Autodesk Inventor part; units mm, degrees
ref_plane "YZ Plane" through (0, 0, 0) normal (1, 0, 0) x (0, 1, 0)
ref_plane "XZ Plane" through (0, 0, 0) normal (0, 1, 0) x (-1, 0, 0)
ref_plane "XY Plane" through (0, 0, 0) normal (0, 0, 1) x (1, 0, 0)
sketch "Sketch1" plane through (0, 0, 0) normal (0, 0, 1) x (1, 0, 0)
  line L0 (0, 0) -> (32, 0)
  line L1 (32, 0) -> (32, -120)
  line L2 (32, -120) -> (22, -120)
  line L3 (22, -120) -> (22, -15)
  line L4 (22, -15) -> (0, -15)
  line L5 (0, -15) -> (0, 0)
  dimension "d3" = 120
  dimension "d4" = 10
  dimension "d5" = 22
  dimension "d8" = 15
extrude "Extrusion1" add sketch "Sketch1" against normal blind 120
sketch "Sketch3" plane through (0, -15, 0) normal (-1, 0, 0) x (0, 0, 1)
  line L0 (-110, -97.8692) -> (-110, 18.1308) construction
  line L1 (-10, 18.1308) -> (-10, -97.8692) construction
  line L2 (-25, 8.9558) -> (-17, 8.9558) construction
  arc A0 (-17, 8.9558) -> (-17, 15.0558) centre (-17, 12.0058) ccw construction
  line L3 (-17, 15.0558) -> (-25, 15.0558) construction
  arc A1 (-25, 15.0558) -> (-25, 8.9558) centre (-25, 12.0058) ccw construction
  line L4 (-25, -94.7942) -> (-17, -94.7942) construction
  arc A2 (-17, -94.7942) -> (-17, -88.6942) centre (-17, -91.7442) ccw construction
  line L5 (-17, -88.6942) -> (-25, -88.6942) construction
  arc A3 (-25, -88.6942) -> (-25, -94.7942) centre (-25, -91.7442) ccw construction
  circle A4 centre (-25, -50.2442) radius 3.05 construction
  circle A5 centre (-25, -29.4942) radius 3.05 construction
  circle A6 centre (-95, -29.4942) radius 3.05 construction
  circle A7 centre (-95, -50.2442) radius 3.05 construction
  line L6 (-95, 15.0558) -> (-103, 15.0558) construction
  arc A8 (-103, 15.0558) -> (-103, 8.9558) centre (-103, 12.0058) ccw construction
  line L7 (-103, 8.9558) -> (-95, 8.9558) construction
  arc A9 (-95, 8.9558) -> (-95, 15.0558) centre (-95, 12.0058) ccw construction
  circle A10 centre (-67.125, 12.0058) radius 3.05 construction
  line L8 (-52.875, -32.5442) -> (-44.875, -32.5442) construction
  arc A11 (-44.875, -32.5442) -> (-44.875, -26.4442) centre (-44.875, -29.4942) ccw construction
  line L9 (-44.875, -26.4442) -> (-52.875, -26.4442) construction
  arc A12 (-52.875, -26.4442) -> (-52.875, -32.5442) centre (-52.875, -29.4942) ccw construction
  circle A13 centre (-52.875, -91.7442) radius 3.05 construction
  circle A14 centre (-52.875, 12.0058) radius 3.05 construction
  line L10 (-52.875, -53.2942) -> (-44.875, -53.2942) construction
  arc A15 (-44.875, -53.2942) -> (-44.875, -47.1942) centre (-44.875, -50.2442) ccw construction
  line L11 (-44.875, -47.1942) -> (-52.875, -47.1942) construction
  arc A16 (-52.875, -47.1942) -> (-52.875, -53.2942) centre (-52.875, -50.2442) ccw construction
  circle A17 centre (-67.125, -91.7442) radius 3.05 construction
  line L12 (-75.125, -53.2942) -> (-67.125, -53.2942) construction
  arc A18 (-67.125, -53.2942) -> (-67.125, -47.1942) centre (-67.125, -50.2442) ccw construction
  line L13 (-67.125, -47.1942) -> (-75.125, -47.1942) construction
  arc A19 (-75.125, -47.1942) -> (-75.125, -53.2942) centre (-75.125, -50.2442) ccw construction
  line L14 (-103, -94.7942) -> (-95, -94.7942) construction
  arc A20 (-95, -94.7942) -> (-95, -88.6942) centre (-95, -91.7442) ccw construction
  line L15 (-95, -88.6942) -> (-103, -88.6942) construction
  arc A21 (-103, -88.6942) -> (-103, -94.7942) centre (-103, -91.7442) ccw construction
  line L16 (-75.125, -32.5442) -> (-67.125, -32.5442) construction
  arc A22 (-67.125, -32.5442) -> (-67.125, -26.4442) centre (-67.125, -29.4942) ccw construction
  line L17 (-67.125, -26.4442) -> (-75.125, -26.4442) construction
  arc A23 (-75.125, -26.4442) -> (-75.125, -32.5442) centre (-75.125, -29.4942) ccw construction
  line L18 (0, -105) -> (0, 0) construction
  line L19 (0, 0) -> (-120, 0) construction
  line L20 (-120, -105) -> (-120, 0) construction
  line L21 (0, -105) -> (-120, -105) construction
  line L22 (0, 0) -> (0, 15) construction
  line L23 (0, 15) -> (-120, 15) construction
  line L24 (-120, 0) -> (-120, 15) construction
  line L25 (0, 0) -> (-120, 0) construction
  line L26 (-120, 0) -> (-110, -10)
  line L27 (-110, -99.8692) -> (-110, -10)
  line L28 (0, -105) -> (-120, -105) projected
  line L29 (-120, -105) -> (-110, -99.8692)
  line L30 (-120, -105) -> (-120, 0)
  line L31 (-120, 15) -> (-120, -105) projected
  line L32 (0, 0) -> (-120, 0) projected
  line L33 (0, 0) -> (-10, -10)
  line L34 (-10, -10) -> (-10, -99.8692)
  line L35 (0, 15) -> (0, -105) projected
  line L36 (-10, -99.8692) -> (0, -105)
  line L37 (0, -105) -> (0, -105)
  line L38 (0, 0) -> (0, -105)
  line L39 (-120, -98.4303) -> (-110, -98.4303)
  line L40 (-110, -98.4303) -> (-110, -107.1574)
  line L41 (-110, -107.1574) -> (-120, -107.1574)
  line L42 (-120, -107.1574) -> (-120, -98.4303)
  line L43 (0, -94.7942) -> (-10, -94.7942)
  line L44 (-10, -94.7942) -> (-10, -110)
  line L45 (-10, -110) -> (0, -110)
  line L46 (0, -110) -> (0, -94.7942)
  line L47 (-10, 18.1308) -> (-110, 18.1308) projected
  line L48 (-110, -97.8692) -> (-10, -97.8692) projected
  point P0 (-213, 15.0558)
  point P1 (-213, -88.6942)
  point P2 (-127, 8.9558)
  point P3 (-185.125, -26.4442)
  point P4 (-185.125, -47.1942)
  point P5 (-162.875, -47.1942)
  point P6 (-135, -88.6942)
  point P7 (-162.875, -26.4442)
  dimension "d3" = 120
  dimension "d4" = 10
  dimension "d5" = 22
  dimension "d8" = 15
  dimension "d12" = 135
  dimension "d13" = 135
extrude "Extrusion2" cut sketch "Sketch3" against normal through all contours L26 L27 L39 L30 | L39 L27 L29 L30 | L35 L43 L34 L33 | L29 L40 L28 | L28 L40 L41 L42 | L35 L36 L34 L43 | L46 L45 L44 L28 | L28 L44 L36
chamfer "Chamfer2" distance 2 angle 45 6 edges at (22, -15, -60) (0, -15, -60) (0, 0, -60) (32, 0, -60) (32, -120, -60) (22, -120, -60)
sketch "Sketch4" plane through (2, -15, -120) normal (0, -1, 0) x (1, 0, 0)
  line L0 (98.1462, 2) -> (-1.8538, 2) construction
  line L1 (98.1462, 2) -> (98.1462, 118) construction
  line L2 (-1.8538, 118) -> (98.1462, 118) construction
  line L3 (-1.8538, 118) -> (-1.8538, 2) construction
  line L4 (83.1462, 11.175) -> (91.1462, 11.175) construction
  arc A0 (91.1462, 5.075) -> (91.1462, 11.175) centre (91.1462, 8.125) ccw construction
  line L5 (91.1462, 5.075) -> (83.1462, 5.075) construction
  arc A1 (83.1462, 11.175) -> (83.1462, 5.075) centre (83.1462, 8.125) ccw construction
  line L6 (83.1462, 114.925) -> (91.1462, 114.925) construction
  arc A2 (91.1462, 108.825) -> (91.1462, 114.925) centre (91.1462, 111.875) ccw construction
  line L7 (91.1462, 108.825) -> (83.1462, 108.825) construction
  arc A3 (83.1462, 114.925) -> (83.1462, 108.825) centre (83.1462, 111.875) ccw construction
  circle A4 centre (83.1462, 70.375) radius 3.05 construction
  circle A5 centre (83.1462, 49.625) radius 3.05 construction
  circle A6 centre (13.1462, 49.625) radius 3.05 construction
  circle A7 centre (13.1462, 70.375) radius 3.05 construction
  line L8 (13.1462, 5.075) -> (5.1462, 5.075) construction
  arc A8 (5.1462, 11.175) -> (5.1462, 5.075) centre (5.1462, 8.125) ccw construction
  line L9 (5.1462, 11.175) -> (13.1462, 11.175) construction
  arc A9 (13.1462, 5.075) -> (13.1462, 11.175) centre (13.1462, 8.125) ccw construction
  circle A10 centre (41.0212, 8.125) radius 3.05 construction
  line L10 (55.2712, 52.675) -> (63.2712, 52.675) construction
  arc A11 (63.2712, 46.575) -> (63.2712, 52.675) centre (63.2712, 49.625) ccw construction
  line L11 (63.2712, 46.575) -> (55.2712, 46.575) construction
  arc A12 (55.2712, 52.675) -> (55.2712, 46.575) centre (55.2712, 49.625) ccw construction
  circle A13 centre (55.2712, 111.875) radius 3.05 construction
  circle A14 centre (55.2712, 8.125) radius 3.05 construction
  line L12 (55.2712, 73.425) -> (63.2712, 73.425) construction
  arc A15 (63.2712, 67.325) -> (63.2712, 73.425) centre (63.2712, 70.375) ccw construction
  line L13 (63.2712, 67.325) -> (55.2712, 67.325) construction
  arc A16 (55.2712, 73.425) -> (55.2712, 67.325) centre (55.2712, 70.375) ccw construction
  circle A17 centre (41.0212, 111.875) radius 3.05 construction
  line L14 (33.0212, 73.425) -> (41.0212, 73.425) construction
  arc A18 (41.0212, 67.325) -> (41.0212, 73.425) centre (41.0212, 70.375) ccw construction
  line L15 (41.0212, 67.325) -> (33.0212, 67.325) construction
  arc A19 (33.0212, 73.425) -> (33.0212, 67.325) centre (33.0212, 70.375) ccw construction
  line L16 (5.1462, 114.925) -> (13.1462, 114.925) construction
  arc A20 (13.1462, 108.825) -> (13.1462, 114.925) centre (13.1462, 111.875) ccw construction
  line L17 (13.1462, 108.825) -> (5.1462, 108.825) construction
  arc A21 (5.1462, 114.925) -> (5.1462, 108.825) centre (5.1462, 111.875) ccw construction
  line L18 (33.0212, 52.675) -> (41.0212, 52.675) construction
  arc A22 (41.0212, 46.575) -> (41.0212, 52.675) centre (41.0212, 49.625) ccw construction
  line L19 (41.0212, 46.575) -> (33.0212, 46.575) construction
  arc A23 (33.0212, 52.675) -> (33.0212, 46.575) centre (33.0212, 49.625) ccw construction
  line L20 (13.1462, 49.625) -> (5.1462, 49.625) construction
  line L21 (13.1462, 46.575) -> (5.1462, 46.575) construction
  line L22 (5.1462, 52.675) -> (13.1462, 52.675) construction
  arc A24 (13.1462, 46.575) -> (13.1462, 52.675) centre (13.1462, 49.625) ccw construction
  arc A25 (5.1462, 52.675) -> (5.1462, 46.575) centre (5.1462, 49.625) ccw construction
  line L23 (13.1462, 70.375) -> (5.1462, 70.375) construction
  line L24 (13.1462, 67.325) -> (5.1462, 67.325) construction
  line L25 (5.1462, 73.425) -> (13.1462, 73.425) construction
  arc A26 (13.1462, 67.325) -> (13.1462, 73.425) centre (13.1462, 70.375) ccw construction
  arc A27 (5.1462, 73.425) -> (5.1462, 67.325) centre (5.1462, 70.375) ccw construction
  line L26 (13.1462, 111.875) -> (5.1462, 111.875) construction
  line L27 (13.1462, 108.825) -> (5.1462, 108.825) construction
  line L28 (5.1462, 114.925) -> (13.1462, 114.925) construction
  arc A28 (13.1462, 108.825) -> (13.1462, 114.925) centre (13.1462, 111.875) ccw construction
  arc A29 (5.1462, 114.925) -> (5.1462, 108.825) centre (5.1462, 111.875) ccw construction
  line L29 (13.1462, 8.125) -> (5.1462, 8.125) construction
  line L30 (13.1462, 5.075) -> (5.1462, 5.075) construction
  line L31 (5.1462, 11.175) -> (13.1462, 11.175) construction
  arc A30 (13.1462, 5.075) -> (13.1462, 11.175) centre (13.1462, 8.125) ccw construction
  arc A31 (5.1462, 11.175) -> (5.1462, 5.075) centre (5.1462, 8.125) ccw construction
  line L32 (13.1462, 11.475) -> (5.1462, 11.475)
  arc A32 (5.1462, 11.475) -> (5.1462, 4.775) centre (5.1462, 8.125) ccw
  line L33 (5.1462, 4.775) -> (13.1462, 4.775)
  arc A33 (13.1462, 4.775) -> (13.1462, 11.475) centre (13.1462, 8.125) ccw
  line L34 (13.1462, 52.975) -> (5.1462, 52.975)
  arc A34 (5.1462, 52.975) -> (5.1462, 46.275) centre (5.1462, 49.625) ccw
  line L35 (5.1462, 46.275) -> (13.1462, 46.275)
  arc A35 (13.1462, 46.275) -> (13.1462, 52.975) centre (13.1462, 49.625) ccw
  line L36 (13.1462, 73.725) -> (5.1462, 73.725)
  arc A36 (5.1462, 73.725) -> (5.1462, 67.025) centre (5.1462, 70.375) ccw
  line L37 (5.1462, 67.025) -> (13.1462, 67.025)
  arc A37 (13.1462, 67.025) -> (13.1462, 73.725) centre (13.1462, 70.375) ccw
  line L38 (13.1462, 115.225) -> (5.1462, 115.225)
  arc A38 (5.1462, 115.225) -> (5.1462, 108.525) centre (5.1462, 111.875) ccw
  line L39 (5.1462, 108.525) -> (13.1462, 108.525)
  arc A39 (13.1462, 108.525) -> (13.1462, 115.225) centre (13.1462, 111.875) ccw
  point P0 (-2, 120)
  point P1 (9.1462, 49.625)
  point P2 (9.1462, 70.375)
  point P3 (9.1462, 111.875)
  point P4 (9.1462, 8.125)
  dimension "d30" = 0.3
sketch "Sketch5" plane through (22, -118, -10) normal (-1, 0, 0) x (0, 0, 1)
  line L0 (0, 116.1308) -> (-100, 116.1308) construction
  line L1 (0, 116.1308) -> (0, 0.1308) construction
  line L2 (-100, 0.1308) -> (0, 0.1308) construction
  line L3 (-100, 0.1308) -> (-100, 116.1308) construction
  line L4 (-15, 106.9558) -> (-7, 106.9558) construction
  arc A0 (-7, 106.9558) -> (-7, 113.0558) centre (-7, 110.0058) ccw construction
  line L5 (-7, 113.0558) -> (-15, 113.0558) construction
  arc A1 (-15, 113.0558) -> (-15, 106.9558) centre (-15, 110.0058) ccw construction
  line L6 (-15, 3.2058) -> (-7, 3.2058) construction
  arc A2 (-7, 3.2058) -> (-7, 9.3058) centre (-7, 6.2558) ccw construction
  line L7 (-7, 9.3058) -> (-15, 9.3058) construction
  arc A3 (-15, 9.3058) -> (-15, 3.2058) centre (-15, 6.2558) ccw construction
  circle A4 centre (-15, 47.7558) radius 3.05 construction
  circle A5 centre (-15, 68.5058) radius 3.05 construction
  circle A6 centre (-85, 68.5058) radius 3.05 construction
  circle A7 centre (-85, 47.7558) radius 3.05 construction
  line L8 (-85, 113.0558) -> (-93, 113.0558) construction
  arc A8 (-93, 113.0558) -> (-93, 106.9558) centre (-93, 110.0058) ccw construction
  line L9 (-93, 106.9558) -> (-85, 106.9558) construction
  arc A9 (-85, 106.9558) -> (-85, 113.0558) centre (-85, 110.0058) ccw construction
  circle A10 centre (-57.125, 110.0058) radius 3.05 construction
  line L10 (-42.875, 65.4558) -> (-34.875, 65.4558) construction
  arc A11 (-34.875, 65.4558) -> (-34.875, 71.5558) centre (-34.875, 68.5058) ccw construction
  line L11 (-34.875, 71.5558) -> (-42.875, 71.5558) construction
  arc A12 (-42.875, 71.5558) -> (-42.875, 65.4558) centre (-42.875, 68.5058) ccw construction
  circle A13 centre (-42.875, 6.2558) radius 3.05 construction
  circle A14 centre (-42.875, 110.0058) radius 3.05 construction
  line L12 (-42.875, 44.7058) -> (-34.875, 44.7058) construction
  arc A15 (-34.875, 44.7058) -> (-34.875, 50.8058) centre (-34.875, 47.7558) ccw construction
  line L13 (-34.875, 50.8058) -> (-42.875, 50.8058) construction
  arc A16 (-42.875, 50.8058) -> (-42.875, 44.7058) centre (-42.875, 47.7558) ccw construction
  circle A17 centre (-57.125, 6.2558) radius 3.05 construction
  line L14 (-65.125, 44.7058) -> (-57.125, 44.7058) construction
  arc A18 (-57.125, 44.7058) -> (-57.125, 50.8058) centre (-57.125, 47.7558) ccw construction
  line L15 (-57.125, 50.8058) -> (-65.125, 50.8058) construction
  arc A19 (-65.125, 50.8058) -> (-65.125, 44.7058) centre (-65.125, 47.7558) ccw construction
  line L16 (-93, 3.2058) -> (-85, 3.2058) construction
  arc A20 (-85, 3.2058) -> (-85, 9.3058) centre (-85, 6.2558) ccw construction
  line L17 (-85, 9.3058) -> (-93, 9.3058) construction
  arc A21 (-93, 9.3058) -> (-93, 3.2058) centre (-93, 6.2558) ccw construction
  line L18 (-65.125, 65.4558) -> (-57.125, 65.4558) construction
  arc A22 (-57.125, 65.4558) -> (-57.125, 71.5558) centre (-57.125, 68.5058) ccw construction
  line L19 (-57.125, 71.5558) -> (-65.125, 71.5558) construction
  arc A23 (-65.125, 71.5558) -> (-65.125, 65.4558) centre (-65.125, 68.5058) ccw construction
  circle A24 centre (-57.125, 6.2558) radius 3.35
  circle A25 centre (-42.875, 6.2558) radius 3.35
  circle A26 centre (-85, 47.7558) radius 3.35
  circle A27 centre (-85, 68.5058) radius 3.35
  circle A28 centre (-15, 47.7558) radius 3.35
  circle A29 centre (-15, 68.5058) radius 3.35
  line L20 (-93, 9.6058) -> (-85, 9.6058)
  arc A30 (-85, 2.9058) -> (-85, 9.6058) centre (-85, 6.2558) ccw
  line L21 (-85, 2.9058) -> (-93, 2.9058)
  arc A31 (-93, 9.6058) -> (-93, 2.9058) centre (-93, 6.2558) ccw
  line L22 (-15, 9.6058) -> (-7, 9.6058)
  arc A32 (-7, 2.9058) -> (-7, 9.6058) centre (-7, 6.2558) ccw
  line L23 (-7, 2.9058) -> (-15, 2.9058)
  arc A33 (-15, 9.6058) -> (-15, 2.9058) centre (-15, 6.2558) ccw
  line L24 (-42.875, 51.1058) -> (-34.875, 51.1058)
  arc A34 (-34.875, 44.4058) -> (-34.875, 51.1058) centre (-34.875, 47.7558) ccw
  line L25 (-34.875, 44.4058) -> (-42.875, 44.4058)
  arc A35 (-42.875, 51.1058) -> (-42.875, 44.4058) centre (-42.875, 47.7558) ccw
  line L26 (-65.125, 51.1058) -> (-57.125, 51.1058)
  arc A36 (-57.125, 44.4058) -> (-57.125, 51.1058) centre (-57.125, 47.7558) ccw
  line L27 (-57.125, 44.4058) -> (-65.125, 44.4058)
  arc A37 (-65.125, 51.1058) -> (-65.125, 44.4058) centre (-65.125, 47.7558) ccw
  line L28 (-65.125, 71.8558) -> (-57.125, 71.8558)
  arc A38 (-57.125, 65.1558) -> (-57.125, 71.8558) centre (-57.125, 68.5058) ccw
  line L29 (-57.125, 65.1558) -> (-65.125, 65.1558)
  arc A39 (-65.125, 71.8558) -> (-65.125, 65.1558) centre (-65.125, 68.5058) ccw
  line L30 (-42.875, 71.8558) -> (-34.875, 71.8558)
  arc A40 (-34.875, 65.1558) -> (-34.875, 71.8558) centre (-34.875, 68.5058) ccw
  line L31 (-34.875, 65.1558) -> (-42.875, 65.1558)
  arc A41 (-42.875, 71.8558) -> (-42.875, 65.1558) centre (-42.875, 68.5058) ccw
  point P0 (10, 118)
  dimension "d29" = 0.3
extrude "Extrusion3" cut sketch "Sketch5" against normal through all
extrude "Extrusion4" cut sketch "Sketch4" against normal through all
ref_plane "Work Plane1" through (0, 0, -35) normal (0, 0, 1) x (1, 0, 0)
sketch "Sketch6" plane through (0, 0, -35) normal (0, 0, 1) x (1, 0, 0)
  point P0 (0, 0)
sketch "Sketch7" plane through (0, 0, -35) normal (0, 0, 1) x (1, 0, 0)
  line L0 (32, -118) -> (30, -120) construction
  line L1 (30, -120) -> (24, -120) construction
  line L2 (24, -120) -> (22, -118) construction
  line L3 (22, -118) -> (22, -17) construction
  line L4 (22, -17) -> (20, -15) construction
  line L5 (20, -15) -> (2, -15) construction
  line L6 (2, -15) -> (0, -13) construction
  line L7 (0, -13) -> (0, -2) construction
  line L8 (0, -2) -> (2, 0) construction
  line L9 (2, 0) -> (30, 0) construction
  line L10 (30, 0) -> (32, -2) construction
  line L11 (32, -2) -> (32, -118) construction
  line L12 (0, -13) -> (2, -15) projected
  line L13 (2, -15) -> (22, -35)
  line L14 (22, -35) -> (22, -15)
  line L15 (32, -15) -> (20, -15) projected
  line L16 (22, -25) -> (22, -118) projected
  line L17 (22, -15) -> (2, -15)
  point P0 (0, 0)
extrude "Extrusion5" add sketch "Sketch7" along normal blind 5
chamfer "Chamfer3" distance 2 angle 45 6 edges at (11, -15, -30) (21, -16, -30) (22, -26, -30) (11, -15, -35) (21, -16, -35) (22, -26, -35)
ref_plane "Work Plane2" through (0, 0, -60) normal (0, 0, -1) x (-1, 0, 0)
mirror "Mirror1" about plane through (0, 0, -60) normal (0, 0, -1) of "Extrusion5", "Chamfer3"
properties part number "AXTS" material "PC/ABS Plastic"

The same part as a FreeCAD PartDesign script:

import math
import FreeCAD as App
import Part
import Sketcher
Q = App.Units.Quantity


def edges_at(feature, points):
    """Names of the edges that pass closest to the given points."""
    edges = feature.Shape.Edges
    near = lambda p: min(range(len(edges)), key=lambda i: edges[i].distToShape(Part.Vertex(*p))[0])
    return sorted({f"Edge{near(p) + 1}" for p in points})

doc = App.newDocument("Part")
body = doc.addObject("PartDesign::Body", "Body")

# Sketch on XY plane
sketch1 = doc.addObject("Sketcher::SketchObject", "Sketch")
body.addObject(sketch1)
sketch1.AttachmentSupport = (doc.XY_Plane, [""])
sketch1.MapMode = "FlatFace"
sketch1.addGeometry(Part.LineSegment(App.Vector(32, 0, 0), App.Vector(0, 0, 0)), False)
sketch1.addGeometry(Part.LineSegment(App.Vector(0, 0, 0), App.Vector(0, -15, 0)), False)
sketch1.addGeometry(Part.LineSegment(App.Vector(0, -15, 0), App.Vector(22, -15, 0)), False)
sketch1.addGeometry(Part.LineSegment(App.Vector(22, -15, 0), App.Vector(22, -120, 0)), False)
sketch1.addGeometry(Part.LineSegment(App.Vector(22, -120, 0), App.Vector(32, -120, 0)), False)
sketch1.addGeometry(Part.LineSegment(App.Vector(32, -120, 0), App.Vector(32, 0, 0)), False)
sketch1.addConstraint(Sketcher.Constraint("Coincident", 0, 2, 1, 1))
sketch1.addConstraint(Sketcher.Constraint("Coincident", 1, 2, 2, 1))
sketch1.addConstraint(Sketcher.Constraint("Coincident", 2, 2, 3, 1))
sketch1.addConstraint(Sketcher.Constraint("Coincident", 3, 2, 4, 1))
sketch1.addConstraint(Sketcher.Constraint("Coincident", 4, 2, 5, 1))
sketch1.addConstraint(Sketcher.Constraint("Coincident", 5, 2, 0, 1))
sketch1.addConstraint(Sketcher.Constraint("Horizontal", 0))
sketch1.addConstraint(Sketcher.Constraint("Vertical", 1))
sketch1.addConstraint(Sketcher.Constraint("Horizontal", 2))
sketch1.addConstraint(Sketcher.Constraint("Vertical", 3))
sketch1.addConstraint(Sketcher.Constraint("Horizontal", 4))
sketch1.addConstraint(Sketcher.Constraint("Vertical", 5))
sketch1.addConstraint(Sketcher.Constraint("Coincident", 0, 2, -1, 1))
sketch1.addConstraint(Sketcher.Constraint("DistanceX", 2, 1, 2, 2, Q("22 mm")))
sketch1.addConstraint(Sketcher.Constraint("DistanceX", 4, 1, 4, 2, Q("10 mm")))
sketch1.addConstraint(Sketcher.Constraint("DistanceY", 1, 2, 1, 1, Q("15 mm")))
sketch1.addConstraint(Sketcher.Constraint("DistanceY", 5, 1, 5, 2, Q("120 mm")))
pad1 = doc.addObject("PartDesign::Pad", "Pad")
body.addObject(pad1)
pad1.Profile = sketch1
pad1.Length = 120
pad1.Reversed = True

# Sketch on YZ plane
sketch2 = doc.addObject("Sketcher::SketchObject", "Sketch001")
body.addObject(sketch2)
sketch2.AttachmentSupport = (doc.YZ_Plane, [""])
sketch2.MapMode = "FlatFace"
sketch2.addGeometry(Part.LineSegment(App.Vector(-25, -110, 0), App.Vector(-15, -120, 0)), False)
sketch2.addGeometry(Part.LineSegment(App.Vector(-15, -120, 0), App.Vector(-122, -120, 0)), False)
sketch2.addGeometry(Part.LineSegment(App.Vector(-122, -120, 0), App.Vector(-122, -110, 0)), False)
sketch2.addGeometry(Part.LineSegment(App.Vector(-122, -110, 0), App.Vector(-25, -110, 0)), False)
sketch2.addGeometry(Part.LineSegment(App.Vector(-15, 0, 0), App.Vector(-25, -10, 0)), False)
sketch2.addGeometry(Part.LineSegment(App.Vector(-25, -10, 0), App.Vector(-125, -10, 0)), False)
sketch2.addGeometry(Part.LineSegment(App.Vector(-125, -10, 0), App.Vector(-125, 0, 0)), False)
sketch2.addGeometry(Part.LineSegment(App.Vector(-125, 0, 0), App.Vector(-15, 0, 0)), False)
sketch2.addConstraint(Sketcher.Constraint("Coincident", 0, 2, 1, 1))
sketch2.addConstraint(Sketcher.Constraint("Coincident", 1, 2, 2, 1))
sketch2.addConstraint(Sketcher.Constraint("Coincident", 2, 2, 3, 1))
sketch2.addConstraint(Sketcher.Constraint("Coincident", 3, 2, 0, 1))
sketch2.addConstraint(Sketcher.Constraint("Coincident", 4, 2, 5, 1))
sketch2.addConstraint(Sketcher.Constraint("Coincident", 5, 2, 6, 1))
sketch2.addConstraint(Sketcher.Constraint("Coincident", 6, 2, 7, 1))
sketch2.addConstraint(Sketcher.Constraint("Coincident", 7, 2, 4, 1))
sketch2.addConstraint(Sketcher.Constraint("Horizontal", 1))
sketch2.addConstraint(Sketcher.Constraint("Vertical", 2))
sketch2.addConstraint(Sketcher.Constraint("Horizontal", 3))
sketch2.addConstraint(Sketcher.Constraint("Horizontal", 5))
sketch2.addConstraint(Sketcher.Constraint("Vertical", 6))
sketch2.addConstraint(Sketcher.Constraint("Horizontal", 7))
sketch2.addConstraint(Sketcher.Constraint("PointOnObject", 6, 2, -1))
sketch2.addConstraint(Sketcher.Constraint("Perpendicular", 0, 4))
sketch2.addConstraint(Sketcher.Constraint("Vertical", 3, 2, 4, 2))
sketch2.addConstraint(Sketcher.Constraint("Vertical", 0, 2, 7, 2))
sketch2.addConstraint(Sketcher.Constraint("Equal", 2, 6))
sketch2.addConstraint(Sketcher.Constraint("DistanceY", 2, 1, 2, 2, Q("10 mm")))
sketch2.addConstraint(Sketcher.Constraint("DistanceX", 0, 2, -1, 1, Q("15 mm")))
sketch2.addConstraint(Sketcher.Constraint("DistanceY", 0, 2, -1, 1, Q("120 mm")))
sketch2.addConstraint(Sketcher.Constraint("DistanceX", 5, 2, 5, 1, Q("100 mm")))
sketch2.addConstraint(Sketcher.Constraint("DistanceX", 1, 2, 1, 1, Q("107.1574 mm")))
pocket1 = doc.addObject("PartDesign::Pocket", "Pocket")
body.addObject(pocket1)
pocket1.Profile = sketch2
pocket1.Type = "ThroughAll"
pocket1.Reversed = True
doc.recompute()

chamfer = doc.addObject("PartDesign::Chamfer", "Chamfer")
body.addObject(chamfer)
chamfer.Base = (pocket1, edges_at(pocket1, [
    (22, -15, -60),
    (0, -15, -60),
    (0, 0, -60),
    (32, 0, -60),
    (32, -120, -60),
    (22, -120, -60),
]))
chamfer.Size = 2

# Sketch on YZ plane
sketch3 = doc.addObject("Sketcher::SketchObject", "Sketch002")
body.addObject(sketch3)
sketch3.AttachmentSupport = (doc.YZ_Plane, [""])
sketch3.MapMode = "FlatFace"
sketch3.AttachmentOffset = App.Placement(App.Vector(0, 0, 22), App.Rotation())
sketch3.addGeometry(Part.Circle(App.Vector(-111.7, -67.1, 0), App.Vector(0, 0, 1), 3.4), False)
sketch3.addGeometry(Part.Circle(App.Vector(-111.7, -52.9, 0), App.Vector(0, 0, 1), 3.4), False)
sketch3.addGeometry(Part.Circle(App.Vector(-70.2, -95, 0), App.Vector(0, 0, 1), 3.4), False)
sketch3.addGeometry(Part.Circle(App.Vector(-49.5, -95, 0), App.Vector(0, 0, 1), 3.4), False)
sketch3.addGeometry(Part.Circle(App.Vector(-70.2, -25, 0), App.Vector(0, 0, 1), 3.4), False)
sketch3.addGeometry(Part.Circle(App.Vector(-49.5, -25, 0), App.Vector(0, 0, 1), 3.4), False)
sketch3.addGeometry(Part.LineSegment(App.Vector(-108.4, -95, 0), App.Vector(-108.4, -103, 0)), False)
sketch3.addGeometry(Part.ArcOfCircle(Part.Circle(App.Vector(-111.7, -103, 0), App.Vector(0, 0, 1), 3.4), math.radians(180), math.radians(360)), False)
sketch3.addGeometry(Part.LineSegment(App.Vector(-115.1, -103, 0), App.Vector(-115.1, -95, 0)), False)
sketch3.addGeometry(Part.ArcOfCircle(Part.Circle(App.Vector(-111.7, -95, 0), App.Vector(0, 0, 1), 3.3), math.radians(0), math.radians(180)), False)
sketch3.addGeometry(Part.LineSegment(App.Vector(-108.4, -17, 0), App.Vector(-108.4, -25, 0)), False)
sketch3.addGeometry(Part.ArcOfCircle(Part.Circle(App.Vector(-111.7, -25, 0), App.Vector(0, 0, 1), 3.4), math.radians(180), math.radians(360)), False)
sketch3.addGeometry(Part.LineSegment(App.Vector(-115.1, -25, 0), App.Vector(-115.1, -17, 0)), False)
sketch3.addGeometry(Part.ArcOfCircle(Part.Circle(App.Vector(-111.7, -17, 0), App.Vector(0, 0, 1), 3.3), math.radians(0), math.radians(180)), False)
sketch3.addGeometry(Part.LineSegment(App.Vector(-66.9, -44.9, 0), App.Vector(-66.9, -52.9, 0)), False)
sketch3.addGeometry(Part.ArcOfCircle(Part.Circle(App.Vector(-70.2, -52.9, 0), App.Vector(0, 0, 1), 3.4), math.radians(180), math.radians(360)), False)
sketch3.addGeometry(Part.LineSegment(App.Vector(-73.6, -52.9, 0), App.Vector(-73.6, -44.9, 0)), False)
sketch3.addGeometry(Part.ArcOfCircle(Part.Circle(App.Vector(-70.2, -44.9, 0), App.Vector(0, 0, 1), 3.4), math.radians(0), math.radians(180)), False)
sketch3.addGeometry(Part.LineSegment(App.Vector(-66.9, -67.1, 0), App.Vector(-66.9, -75.1, 0)), False)
sketch3.addGeometry(Part.ArcOfCircle(Part.Circle(App.Vector(-70.2, -75.1, 0), App.Vector(0, 0, 1), 3.4), math.radians(180), math.radians(360)), False)
sketch3.addGeometry(Part.LineSegment(App.Vector(-73.6, -75.1, 0), App.Vector(-73.6, -67.1, 0)), False)
sketch3.addGeometry(Part.ArcOfCircle(Part.Circle(App.Vector(-70.2, -67.1, 0), App.Vector(0, 0, 1), 3.4), math.radians(0), math.radians(180)), False)
sketch3.addGeometry(Part.LineSegment(App.Vector(-46.1, -67.1, 0), App.Vector(-46.1, -75.1, 0)), False)
sketch3.addGeometry(Part.ArcOfCircle(Part.Circle(App.Vector(-49.5, -75.1, 0), App.Vector(0, 0, 1), 3.4), math.radians(180), math.radians(360)), False)
sketch3.addGeometry(Part.LineSegment(App.Vector(-52.8, -75.1, 0), App.Vector(-52.8, -67.1, 0)), False)
sketch3.addGeometry(Part.ArcOfCircle(Part.Circle(App.Vector(-49.5, -67.1, 0), App.Vector(0, 0, 1), 3.3), math.radians(0), math.radians(180)), False)
sketch3.addGeometry(Part.LineSegment(App.Vector(-46.1, -44.9, 0), App.Vector(-46.1, -52.9, 0)), False)
sketch3.addGeometry(Part.ArcOfCircle(Part.Circle(App.Vector(-49.5, -52.9, 0), App.Vector(0, 0, 1), 3.4), math.radians(180), math.radians(360)), False)
sketch3.addGeometry(Part.LineSegment(App.Vector(-52.8, -52.9, 0), App.Vector(-52.8, -44.9, 0)), False)
sketch3.addGeometry(Part.ArcOfCircle(Part.Circle(App.Vector(-49.5, -44.9, 0), App.Vector(0, 0, 1), 3.3), math.radians(0), math.radians(180)), False)
sketch3.addConstraint(Sketcher.Constraint("Tangent", 6, 2, 7, 2))
sketch3.addConstraint(Sketcher.Constraint("Tangent", 7, 1, 8, 1))
sketch3.addConstraint(Sketcher.Constraint("Tangent", 8, 2, 9, 2))
sketch3.addConstraint(Sketcher.Constraint("Tangent", 9, 1, 6, 1))
sketch3.addConstraint(Sketcher.Constraint("Tangent", 10, 2, 11, 2))
sketch3.addConstraint(Sketcher.Constraint("Tangent", 11, 1, 12, 1))
sketch3.addConstraint(Sketcher.Constraint("Tangent", 12, 2, 13, 2))
sketch3.addConstraint(Sketcher.Constraint("Tangent", 13, 1, 10, 1))
sketch3.addConstraint(Sketcher.Constraint("Tangent", 14, 2, 15, 2))
sketch3.addConstraint(Sketcher.Constraint("Tangent", 15, 1, 16, 1))
sketch3.addConstraint(Sketcher.Constraint("Tangent", 16, 2, 17, 2))
sketch3.addConstraint(Sketcher.Constraint("Tangent", 17, 1, 14, 1))
sketch3.addConstraint(Sketcher.Constraint("Tangent", 18, 2, 19, 2))
sketch3.addConstraint(Sketcher.Constraint("Tangent", 19, 1, 20, 1))
sketch3.addConstraint(Sketcher.Constraint("Tangent", 20, 2, 21, 2))
sketch3.addConstraint(Sketcher.Constraint("Tangent", 21, 1, 18, 1))
sketch3.addConstraint(Sketcher.Constraint("Tangent", 22, 2, 23, 2))
sketch3.addConstraint(Sketcher.Constraint("Tangent", 23, 1, 24, 1))
sketch3.addConstraint(Sketcher.Constraint("Tangent", 24, 2, 25, 2))
sketch3.addConstraint(Sketcher.Constraint("Tangent", 25, 1, 22, 1))
sketch3.addConstraint(Sketcher.Constraint("Tangent", 26, 2, 27, 2))
sketch3.addConstraint(Sketcher.Constraint("Tangent", 27, 1, 28, 1))
sketch3.addConstraint(Sketcher.Constraint("Tangent", 28, 2, 29, 2))
sketch3.addConstraint(Sketcher.Constraint("Tangent", 29, 1, 26, 1))
sketch3.addConstraint(Sketcher.Constraint("Vertical", 6))
sketch3.addConstraint(Sketcher.Constraint("Vertical", 8))
sketch3.addConstraint(Sketcher.Constraint("Vertical", 10))
sketch3.addConstraint(Sketcher.Constraint("Vertical", 12))
sketch3.addConstraint(Sketcher.Constraint("Vertical", 14))
sketch3.addConstraint(Sketcher.Constraint("Vertical", 16))
sketch3.addConstraint(Sketcher.Constraint("Vertical", 18))
sketch3.addConstraint(Sketcher.Constraint("Vertical", 20))
sketch3.addConstraint(Sketcher.Constraint("Vertical", 22))
sketch3.addConstraint(Sketcher.Constraint("Vertical", 24))
sketch3.addConstraint(Sketcher.Constraint("Vertical", 26))
sketch3.addConstraint(Sketcher.Constraint("Vertical", 28))
sketch3.addConstraint(Sketcher.Constraint("Equal", 0, 1))
sketch3.addConstraint(Sketcher.Constraint("Equal", 1, 2))
sketch3.addConstraint(Sketcher.Constraint("Equal", 2, 3))
sketch3.addConstraint(Sketcher.Constraint("Equal", 3, 4))
sketch3.addConstraint(Sketcher.Constraint("Equal", 4, 5))
sketch3.addConstraint(Sketcher.Constraint("Equal", 5, 7))
sketch3.addConstraint(Sketcher.Constraint("Equal", 9, 11))
sketch3.addConstraint(Sketcher.Constraint("Equal", 13, 15))
sketch3.addConstraint(Sketcher.Constraint("Equal", 17, 19))
sketch3.addConstraint(Sketcher.Constraint("Equal", 21, 23))
sketch3.addConstraint(Sketcher.Constraint("Equal", 25, 27))
sketch3.addConstraint(Sketcher.Constraint("Horizontal", 2, 3, 3, 3))
sketch3.addConstraint(Sketcher.Constraint("Horizontal", 4, 3, 5, 3))
sketch3.addConstraint(Sketcher.Constraint("Horizontal", 3, 3, 9, 3))
sketch3.addConstraint(Sketcher.Constraint("Horizontal", 5, 3, 11, 3))
sketch3.addConstraint(Sketcher.Constraint("Horizontal", 1, 3, 15, 3))
sketch3.addConstraint(Sketcher.Constraint("Horizontal", 0, 3, 21, 3))
sketch3.addConstraint(Sketcher.Constraint("Horizontal", 19, 3, 23, 3))
sketch3.addConstraint(Sketcher.Constraint("Horizontal", 21, 3, 25, 3))
sketch3.addConstraint(Sketcher.Constraint("Horizontal", 15, 3, 27, 3))
sketch3.addConstraint(Sketcher.Constraint("Horizontal", 17, 3, 29, 3))
sketch3.addConstraint(Sketcher.Constraint("Vertical", 0, 3, 1, 3))
sketch3.addConstraint(Sketcher.Constraint("Vertical", 2, 3, 4, 3))
sketch3.addConstraint(Sketcher.Constraint("Vertical", 3, 3, 5, 3))
sketch3.addConstraint(Sketcher.Constraint("Vertical", 1, 3, 7, 3))
sketch3.addConstraint(Sketcher.Constraint("Vertical", 9, 3, 11, 3))
sketch3.addConstraint(Sketcher.Constraint("Vertical", 4, 3, 15, 3))
sketch3.addConstraint(Sketcher.Constraint("Vertical", 17, 3, 19, 3))
sketch3.addConstraint(Sketcher.Constraint("Vertical", 5, 3, 23, 3))
sketch3.addConstraint(Sketcher.Constraint("Vertical", 25, 3, 27, 3))
sketch3.addConstraint(Sketcher.Constraint("Equal", 8, 10))
sketch3.addConstraint(Sketcher.Constraint("Equal", 12, 14))
sketch3.addConstraint(Sketcher.Constraint("Equal", 16, 18))
sketch3.addConstraint(Sketcher.Constraint("Diameter", 0, Q("6.7 mm")))
sketch3.addConstraint(Sketcher.Constraint("DistanceY", 6, 2, 6, 1, Q("8 mm")))
sketch3.addConstraint(Sketcher.Constraint("DistanceY", 2, 3, -1, 1, Q("95 mm")))
sketch3.addConstraint(Sketcher.Constraint("DistanceY", 4, 3, -1, 1, Q("25 mm")))
sketch3.addConstraint(Sketcher.Constraint("DistanceX", 0, 3, 2, 3, Q("41.5 mm")))
sketch3.addConstraint(Sketcher.Constraint("DistanceX", 14, 2, 27, 3, Q("17.4 mm")))
sketch3.addConstraint(Sketcher.Constraint("DistanceY", 0, 3, 1, 3, Q("14.25 mm")))
sketch3.addConstraint(Sketcher.Constraint("DistanceY", 0, 3, -1, 1, Q("67.125 mm")))
sketch3.addConstraint(Sketcher.Constraint("DistanceX", 0, 3, -1, 1, Q("111.7442 mm")))
pocket2 = doc.addObject("PartDesign::Pocket", "Pocket001")
body.addObject(pocket2)
pocket2.Profile = sketch3
pocket2.Type = "ThroughAll"
pocket2.Reversed = True

# Sketch on XZ plane
sketch4 = doc.addObject("Sketcher::SketchObject", "Sketch003")
body.addObject(sketch4)
sketch4.AttachmentSupport = (doc.XZ_Plane, [""])
sketch4.MapMode = "FlatFace"
sketch4.AttachmentOffset = App.Placement(App.Vector(0, 0, 15), App.Rotation())
sketch4.addGeometry(Part.ArcOfCircle(Part.Circle(App.Vector(15.1, -111.9, 0), App.Vector(0, 0, 1), 3.3), math.radians(-90), math.radians(90)), False)
sketch4.addGeometry(Part.LineSegment(App.Vector(15.1, -108.5, 0), App.Vector(7.1, -108.5, 0)), False)
sketch4.addGeometry(Part.ArcOfCircle(Part.Circle(App.Vector(7.1, -111.9, 0), App.Vector(0, 0, 1), 3.3), math.radians(90), math.radians(270)), False)
sketch4.addGeometry(Part.LineSegment(App.Vector(7.1, -115.2, 0), App.Vector(15.1, -115.2, 0)), False)
sketch4.addGeometry(Part.ArcOfCircle(Part.Circle(App.Vector(15.1, -70.4, 0), App.Vector(0, 0, 1), 3.4), math.radians(-90), math.radians(90)), False)
sketch4.addGeometry(Part.LineSegment(App.Vector(15.1, -67, 0), App.Vector(7.1, -67, 0)), False)
sketch4.addGeometry(Part.ArcOfCircle(Part.Circle(App.Vector(7.1, -70.4, 0), App.Vector(0, 0, 1), 3.4), math.radians(90), math.radians(270)), False)
sketch4.addGeometry(Part.LineSegment(App.Vector(7.1, -73.7, 0), App.Vector(15.1, -73.7, 0)), False)
sketch4.addGeometry(Part.ArcOfCircle(Part.Circle(App.Vector(15.1, -49.6, 0), App.Vector(0, 0, 1), 3.3), math.radians(-90), math.radians(90)), False)
sketch4.addGeometry(Part.LineSegment(App.Vector(15.1, -46.3, 0), App.Vector(7.1, -46.3, 0)), False)
sketch4.addGeometry(Part.ArcOfCircle(Part.Circle(App.Vector(7.1, -49.6, 0), App.Vector(0, 0, 1), 3.3), math.radians(90), math.radians(270)), False)
sketch4.addGeometry(Part.LineSegment(App.Vector(7.1, -53, 0), App.Vector(15.1, -53, 0)), False)
sketch4.addGeometry(Part.ArcOfCircle(Part.Circle(App.Vector(15.1, -8.1, 0), App.Vector(0, 0, 1), 3.3), math.radians(-90), math.radians(90)), False)
sketch4.addGeometry(Part.LineSegment(App.Vector(15.1, -4.8, 0), App.Vector(7.1, -4.8, 0)), False)
sketch4.addGeometry(Part.ArcOfCircle(Part.Circle(App.Vector(7.1, -8.1, 0), App.Vector(0, 0, 1), 3.3), math.radians(90), math.radians(270)), False)
sketch4.addGeometry(Part.LineSegment(App.Vector(7.1, -11.5, 0), App.Vector(15.1, -11.5, 0)), False)
sketch4.addConstraint(Sketcher.Constraint("Tangent", 0, 2, 1, 1))
sketch4.addConstraint(Sketcher.Constraint("Tangent", 1, 2, 2, 1))
sketch4.addConstraint(Sketcher.Constraint("Tangent", 2, 2, 3, 1))
sketch4.addConstraint(Sketcher.Constraint("Tangent", 3, 2, 0, 1))
sketch4.addConstraint(Sketcher.Constraint("Tangent", 4, 2, 5, 1))
sketch4.addConstraint(Sketcher.Constraint("Tangent", 5, 2, 6, 1))
sketch4.addConstraint(Sketcher.Constraint("Tangent", 6, 2, 7, 1))
sketch4.addConstraint(Sketcher.Constraint("Tangent", 7, 2, 4, 1))
sketch4.addConstraint(Sketcher.Constraint("Tangent", 8, 2, 9, 1))
sketch4.addConstraint(Sketcher.Constraint("Tangent", 9, 2, 10, 1))
sketch4.addConstraint(Sketcher.Constraint("Tangent", 10, 2, 11, 1))
sketch4.addConstraint(Sketcher.Constraint("Tangent", 11, 2, 8, 1))
sketch4.addConstraint(Sketcher.Constraint("Tangent", 12, 2, 13, 1))
sketch4.addConstraint(Sketcher.Constraint("Tangent", 13, 2, 14, 1))
sketch4.addConstraint(Sketcher.Constraint("Tangent", 14, 2, 15, 1))
sketch4.addConstraint(Sketcher.Constraint("Tangent", 15, 2, 12, 1))
sketch4.addConstraint(Sketcher.Constraint("Horizontal", 1))
sketch4.addConstraint(Sketcher.Constraint("Horizontal", 3))
sketch4.addConstraint(Sketcher.Constraint("Horizontal", 5))
sketch4.addConstraint(Sketcher.Constraint("Horizontal", 7))
sketch4.addConstraint(Sketcher.Constraint("Horizontal", 9))
sketch4.addConstraint(Sketcher.Constraint("Horizontal", 11))
sketch4.addConstraint(Sketcher.Constraint("Horizontal", 13))
sketch4.addConstraint(Sketcher.Constraint("Horizontal", 15))
sketch4.addConstraint(Sketcher.Constraint("Equal", 2, 4))
sketch4.addConstraint(Sketcher.Constraint("Equal", 6, 8))
sketch4.addConstraint(Sketcher.Constraint("Equal", 10, 12))
sketch4.addConstraint(Sketcher.Constraint("Vertical", 0, 3, 4, 3))
sketch4.addConstraint(Sketcher.Constraint("Vertical", 2, 3, 6, 3))
sketch4.addConstraint(Sketcher.Constraint("Vertical", 4, 3, 8, 3))
sketch4.addConstraint(Sketcher.Constraint("Vertical", 6, 3, 10, 3))
sketch4.addConstraint(Sketcher.Constraint("Vertical", 8, 3, 12, 3))
sketch4.addConstraint(Sketcher.Constraint("Vertical", 10, 3, 14, 3))
sketch4.addConstraint(Sketcher.Constraint("DistanceX", 1, 2, 1, 1, Q("8 mm")))
sketch4.addConstraint(Sketcher.Constraint("Radius", 0, Q("3.35 mm")))
sketch4.addConstraint(Sketcher.Constraint("DistanceY", 0, 3, 4, 3, Q("41.5 mm")))
sketch4.addConstraint(Sketcher.Constraint("DistanceY", 8, 3, 12, 3, Q("41.5 mm")))
sketch4.addConstraint(Sketcher.Constraint("DistanceY", 0, 2, 8, 3, Q("58.9 mm")))
sketch4.addConstraint(Sketcher.Constraint("DistanceY", 0, 3, -1, 1, Q("111.875 mm")))
sketch4.addConstraint(Sketcher.Constraint("DistanceX", -1, 1, 0, 3, Q("15.1462 mm")))
pocket3 = doc.addObject("PartDesign::Pocket", "Pocket002")
body.addObject(pocket3)
pocket3.Profile = sketch4
pocket3.Type = "ThroughAll"

# Sketch on XY plane
sketch5 = doc.addObject("Sketcher::SketchObject", "Sketch004")
body.addObject(sketch5)
sketch5.AttachmentSupport = (doc.XY_Plane, [""])
sketch5.MapMode = "FlatFace"
sketch5.AttachmentOffset = App.Placement(App.Vector(0, 0, -35), App.Rotation())
sketch5.addGeometry(Part.LineSegment(App.Vector(22, -15, 0), App.Vector(2, -15, 0)), False)
sketch5.addGeometry(Part.LineSegment(App.Vector(2, -15, 0), App.Vector(22, -35, 0)), False)
sketch5.addGeometry(Part.LineSegment(App.Vector(22, -35, 0), App.Vector(22, -15, 0)), False)
sketch5.addConstraint(Sketcher.Constraint("Coincident", 0, 2, 1, 1))
sketch5.addConstraint(Sketcher.Constraint("Coincident", 1, 2, 2, 1))
sketch5.addConstraint(Sketcher.Constraint("Coincident", 2, 2, 0, 1))
sketch5.addConstraint(Sketcher.Constraint("Horizontal", 0))
sketch5.addConstraint(Sketcher.Constraint("Vertical", 2))
sketch5.addConstraint(Sketcher.Constraint("Equal", 0, 2))
sketch5.addConstraint(Sketcher.Constraint("DistanceX", 0, 2, 0, 1, Q("20 mm")))
sketch5.addConstraint(Sketcher.Constraint("DistanceX", -1, 1, 0, 2, Q("2 mm")))
sketch5.addConstraint(Sketcher.Constraint("DistanceY", 0, 2, -1, 1, Q("15 mm")))
pad2 = doc.addObject("PartDesign::Pad", "Pad001")
body.addObject(pad2)
pad2.Profile = sketch5
pad2.Length = 5
doc.recompute()

chamfer2 = doc.addObject("PartDesign::Chamfer", "Chamfer001")
body.addObject(chamfer2)
chamfer2.Base = (pad2, edges_at(pad2, [
    (11, -15, -30),
    (21, -16, -30),
    (22, -26, -30),
    (11, -15, -35),
    (21, -16, -35),
    (22, -26, -35),
]))
chamfer2.Size = 2
doc.recompute()

datumplane = doc.addObject("PartDesign::Plane", "DatumPlane")
body.addObject(datumplane)
datumplane.AttachmentSupport = (doc.XY_Plane, [""])
datumplane.MapMode = "FlatFace"
datumplane.AttachmentOffset = App.Placement(App.Vector(0, 0, -60), App.Rotation())
mirrored = doc.addObject("PartDesign::Mirrored", "Mirrored")
body.addObject(mirrored)
mirrored.Originals = [pad2, chamfer2]
mirrored.MirrorPlane = (datumplane, [""])
body.Tip = mirrored

doc.recompute()
